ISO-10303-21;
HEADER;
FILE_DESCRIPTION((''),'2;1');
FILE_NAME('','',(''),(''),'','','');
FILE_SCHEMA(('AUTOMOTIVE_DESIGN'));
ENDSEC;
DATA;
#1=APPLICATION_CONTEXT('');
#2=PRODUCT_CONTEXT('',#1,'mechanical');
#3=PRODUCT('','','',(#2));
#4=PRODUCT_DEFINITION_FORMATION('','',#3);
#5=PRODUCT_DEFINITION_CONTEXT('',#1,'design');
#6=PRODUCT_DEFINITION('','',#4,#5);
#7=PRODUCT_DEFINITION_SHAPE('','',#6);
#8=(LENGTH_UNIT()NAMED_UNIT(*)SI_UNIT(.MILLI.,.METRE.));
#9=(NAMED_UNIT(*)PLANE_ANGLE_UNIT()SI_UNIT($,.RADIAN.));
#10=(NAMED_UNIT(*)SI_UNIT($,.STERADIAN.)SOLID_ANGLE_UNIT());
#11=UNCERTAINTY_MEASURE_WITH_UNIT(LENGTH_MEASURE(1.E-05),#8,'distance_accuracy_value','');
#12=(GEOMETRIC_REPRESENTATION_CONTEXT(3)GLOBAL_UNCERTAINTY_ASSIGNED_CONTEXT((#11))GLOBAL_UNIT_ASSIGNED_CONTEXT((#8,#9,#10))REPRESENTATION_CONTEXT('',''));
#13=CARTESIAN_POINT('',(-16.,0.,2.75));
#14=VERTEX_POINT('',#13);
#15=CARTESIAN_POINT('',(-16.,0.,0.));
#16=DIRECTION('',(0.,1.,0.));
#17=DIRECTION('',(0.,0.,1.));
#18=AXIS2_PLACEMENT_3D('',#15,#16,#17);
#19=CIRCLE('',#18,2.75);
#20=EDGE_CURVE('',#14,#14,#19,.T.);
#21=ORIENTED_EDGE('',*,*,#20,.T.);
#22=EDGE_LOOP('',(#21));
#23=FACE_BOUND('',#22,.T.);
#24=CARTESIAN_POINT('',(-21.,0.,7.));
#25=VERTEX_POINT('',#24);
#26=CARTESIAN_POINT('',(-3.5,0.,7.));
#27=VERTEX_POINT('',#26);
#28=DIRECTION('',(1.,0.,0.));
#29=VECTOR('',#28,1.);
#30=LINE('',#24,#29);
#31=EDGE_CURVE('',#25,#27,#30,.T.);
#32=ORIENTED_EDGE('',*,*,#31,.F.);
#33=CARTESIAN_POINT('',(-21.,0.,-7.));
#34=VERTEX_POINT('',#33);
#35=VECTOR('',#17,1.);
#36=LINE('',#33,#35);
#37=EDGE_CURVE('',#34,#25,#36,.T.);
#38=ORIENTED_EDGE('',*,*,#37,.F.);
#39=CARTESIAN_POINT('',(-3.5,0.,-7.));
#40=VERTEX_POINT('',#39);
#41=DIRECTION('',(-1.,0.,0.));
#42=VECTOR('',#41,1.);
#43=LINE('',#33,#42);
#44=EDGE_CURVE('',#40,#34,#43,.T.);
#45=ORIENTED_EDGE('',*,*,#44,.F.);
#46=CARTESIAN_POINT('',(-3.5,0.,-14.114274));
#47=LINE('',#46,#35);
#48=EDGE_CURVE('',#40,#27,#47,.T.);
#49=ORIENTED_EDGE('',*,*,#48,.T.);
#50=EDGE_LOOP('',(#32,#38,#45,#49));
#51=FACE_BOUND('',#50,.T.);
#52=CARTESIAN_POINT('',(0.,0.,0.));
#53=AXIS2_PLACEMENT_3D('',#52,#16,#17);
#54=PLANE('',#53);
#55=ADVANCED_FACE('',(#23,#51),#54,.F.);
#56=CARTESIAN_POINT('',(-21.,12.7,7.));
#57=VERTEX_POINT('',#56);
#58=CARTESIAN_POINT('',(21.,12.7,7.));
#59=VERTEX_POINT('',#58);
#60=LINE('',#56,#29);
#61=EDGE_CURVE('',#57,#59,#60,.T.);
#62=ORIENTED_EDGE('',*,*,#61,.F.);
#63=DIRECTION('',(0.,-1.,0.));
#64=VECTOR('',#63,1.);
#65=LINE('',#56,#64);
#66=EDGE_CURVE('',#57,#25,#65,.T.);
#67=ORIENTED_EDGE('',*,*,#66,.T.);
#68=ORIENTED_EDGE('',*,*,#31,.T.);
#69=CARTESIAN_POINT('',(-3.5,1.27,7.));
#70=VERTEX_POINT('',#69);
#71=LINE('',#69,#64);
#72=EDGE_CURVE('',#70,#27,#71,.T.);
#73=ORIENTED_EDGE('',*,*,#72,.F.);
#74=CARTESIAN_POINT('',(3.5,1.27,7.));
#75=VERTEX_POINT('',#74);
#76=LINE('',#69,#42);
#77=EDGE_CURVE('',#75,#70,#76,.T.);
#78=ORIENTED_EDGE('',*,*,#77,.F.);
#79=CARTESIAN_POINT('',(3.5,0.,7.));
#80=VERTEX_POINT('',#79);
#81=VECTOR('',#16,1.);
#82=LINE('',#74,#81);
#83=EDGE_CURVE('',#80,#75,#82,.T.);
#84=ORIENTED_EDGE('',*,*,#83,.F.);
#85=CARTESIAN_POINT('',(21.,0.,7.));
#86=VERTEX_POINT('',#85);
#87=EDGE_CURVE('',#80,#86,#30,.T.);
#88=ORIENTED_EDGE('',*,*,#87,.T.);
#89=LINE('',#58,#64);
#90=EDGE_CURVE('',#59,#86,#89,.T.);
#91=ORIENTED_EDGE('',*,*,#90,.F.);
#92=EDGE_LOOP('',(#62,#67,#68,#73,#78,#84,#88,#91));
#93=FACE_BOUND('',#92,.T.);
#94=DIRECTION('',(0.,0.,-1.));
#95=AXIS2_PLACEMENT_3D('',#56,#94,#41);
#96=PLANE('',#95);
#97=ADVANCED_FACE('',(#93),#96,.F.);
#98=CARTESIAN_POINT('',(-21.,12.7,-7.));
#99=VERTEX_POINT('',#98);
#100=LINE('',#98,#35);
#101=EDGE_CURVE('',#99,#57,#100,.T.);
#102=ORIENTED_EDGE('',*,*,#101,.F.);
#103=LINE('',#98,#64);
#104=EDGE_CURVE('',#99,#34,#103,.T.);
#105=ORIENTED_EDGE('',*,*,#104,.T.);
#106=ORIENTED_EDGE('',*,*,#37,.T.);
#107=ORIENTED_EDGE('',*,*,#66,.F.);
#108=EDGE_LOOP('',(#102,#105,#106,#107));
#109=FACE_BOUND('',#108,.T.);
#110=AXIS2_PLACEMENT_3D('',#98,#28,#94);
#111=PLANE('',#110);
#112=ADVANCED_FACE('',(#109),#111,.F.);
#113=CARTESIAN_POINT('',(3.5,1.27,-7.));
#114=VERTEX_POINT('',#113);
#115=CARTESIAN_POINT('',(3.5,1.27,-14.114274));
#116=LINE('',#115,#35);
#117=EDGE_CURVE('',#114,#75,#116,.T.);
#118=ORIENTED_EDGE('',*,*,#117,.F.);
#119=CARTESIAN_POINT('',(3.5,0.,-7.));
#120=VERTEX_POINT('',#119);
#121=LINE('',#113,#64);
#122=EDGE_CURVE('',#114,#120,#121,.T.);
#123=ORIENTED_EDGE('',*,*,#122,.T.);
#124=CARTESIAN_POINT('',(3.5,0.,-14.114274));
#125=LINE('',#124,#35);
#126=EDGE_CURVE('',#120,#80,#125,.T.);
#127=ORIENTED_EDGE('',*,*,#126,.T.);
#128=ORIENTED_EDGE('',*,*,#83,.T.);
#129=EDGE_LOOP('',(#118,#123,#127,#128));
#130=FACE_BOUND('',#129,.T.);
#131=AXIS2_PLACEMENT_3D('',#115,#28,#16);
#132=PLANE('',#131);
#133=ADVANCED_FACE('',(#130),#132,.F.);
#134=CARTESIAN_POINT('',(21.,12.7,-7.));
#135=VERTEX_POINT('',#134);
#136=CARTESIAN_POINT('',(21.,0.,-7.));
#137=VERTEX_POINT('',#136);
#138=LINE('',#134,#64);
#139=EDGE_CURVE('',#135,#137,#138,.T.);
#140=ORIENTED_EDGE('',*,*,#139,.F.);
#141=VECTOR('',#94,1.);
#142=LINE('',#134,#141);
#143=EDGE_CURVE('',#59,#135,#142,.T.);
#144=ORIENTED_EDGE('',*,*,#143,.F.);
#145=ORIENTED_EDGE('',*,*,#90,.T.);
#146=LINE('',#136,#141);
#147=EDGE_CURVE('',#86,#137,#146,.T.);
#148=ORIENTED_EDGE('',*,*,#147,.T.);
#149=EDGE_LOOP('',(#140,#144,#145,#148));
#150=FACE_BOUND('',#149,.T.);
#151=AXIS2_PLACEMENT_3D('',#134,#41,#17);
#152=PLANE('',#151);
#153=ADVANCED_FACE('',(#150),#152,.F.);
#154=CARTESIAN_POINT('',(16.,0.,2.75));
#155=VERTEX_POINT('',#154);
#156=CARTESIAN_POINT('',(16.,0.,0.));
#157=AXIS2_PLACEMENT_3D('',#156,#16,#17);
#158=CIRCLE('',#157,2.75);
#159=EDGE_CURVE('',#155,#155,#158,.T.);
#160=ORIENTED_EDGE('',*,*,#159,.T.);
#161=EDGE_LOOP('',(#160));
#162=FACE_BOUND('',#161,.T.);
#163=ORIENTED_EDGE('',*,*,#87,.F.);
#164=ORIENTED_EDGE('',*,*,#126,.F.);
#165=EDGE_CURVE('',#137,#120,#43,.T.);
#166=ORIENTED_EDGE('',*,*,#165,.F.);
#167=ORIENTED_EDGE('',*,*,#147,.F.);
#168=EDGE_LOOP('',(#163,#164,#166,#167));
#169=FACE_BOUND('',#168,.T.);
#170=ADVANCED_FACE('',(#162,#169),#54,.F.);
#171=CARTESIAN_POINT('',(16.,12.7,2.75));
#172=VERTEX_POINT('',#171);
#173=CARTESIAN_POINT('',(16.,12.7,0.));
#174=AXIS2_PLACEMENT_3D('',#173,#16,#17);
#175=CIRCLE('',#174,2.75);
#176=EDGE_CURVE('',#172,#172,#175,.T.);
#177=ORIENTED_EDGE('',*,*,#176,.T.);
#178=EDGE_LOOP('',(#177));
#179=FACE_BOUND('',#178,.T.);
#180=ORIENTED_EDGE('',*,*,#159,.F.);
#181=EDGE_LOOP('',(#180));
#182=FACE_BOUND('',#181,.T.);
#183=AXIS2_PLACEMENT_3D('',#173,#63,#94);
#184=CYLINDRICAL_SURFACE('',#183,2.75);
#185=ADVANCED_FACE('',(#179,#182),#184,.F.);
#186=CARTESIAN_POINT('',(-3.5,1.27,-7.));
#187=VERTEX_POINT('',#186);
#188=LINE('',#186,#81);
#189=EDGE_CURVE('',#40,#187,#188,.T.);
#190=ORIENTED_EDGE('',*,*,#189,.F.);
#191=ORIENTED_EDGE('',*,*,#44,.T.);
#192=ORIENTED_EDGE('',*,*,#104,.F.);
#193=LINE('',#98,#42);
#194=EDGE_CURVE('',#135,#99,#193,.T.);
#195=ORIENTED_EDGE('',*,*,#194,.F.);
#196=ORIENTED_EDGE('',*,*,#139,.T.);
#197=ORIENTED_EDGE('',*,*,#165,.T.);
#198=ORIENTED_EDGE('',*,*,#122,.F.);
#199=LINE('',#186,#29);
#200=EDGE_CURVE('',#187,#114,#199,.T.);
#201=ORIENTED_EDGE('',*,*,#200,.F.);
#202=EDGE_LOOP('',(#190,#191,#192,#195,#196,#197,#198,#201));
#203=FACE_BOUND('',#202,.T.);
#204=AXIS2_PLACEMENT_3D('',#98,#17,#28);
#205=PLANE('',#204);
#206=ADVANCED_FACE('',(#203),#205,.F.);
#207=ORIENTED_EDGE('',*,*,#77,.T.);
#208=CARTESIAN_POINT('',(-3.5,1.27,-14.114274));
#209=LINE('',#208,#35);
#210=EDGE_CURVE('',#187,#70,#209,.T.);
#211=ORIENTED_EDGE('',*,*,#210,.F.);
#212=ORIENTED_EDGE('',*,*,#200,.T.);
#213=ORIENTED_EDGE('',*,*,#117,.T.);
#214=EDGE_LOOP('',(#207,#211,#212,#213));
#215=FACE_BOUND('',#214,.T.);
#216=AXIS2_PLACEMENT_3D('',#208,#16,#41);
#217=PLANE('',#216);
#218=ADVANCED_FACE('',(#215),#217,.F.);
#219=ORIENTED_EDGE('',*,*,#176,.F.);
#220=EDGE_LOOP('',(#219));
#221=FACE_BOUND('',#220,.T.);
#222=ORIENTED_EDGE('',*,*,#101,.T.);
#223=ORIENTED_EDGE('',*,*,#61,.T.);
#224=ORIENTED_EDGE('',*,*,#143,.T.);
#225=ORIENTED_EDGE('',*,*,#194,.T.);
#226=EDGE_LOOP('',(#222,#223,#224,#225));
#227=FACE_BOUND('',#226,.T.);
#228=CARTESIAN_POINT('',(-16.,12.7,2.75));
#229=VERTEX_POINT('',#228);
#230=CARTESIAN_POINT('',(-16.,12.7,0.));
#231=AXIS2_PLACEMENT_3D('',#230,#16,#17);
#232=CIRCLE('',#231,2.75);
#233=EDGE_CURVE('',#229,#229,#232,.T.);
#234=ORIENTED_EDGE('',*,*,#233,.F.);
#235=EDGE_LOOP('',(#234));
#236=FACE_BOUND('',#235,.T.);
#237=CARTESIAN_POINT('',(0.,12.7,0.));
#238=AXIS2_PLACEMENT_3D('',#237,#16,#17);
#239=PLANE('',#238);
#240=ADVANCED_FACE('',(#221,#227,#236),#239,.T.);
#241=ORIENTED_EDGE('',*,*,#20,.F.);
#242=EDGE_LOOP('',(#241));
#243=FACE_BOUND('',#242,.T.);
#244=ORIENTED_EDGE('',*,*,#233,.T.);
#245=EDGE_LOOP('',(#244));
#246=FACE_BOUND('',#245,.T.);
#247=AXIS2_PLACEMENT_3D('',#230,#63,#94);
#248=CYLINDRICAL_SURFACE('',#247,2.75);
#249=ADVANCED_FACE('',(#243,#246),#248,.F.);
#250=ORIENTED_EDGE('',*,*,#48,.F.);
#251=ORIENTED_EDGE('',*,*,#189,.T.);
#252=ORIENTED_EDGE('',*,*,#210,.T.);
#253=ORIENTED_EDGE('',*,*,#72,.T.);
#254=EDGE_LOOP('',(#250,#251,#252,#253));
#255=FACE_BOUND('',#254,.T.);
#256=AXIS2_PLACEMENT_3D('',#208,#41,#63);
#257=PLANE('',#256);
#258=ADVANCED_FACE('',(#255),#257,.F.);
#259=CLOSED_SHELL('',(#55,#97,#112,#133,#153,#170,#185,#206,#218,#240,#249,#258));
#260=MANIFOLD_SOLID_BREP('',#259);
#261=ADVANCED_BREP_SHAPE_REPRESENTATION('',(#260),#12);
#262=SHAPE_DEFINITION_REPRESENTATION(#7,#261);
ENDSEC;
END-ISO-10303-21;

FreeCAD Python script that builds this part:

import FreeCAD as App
import Part
import Sketcher
Q = App.Units.Quantity

doc = App.newDocument("Part")
body = doc.addObject("PartDesign::Body", "Body")

sketch1 = doc.addObject("Sketcher::SketchObject", "Sketch")
body.addObject(sketch1)
sketch1.AttachmentSupport = (doc.XZ_Plane, [""])
sketch1.MapMode = "FlatFace"
sketch1.addGeometry(Part.LineSegment(App.Vector(-21, -7, 0), App.Vector(-21, 7, 0)), False)
sketch1.addGeometry(Part.LineSegment(App.Vector(-21, 7, 0), App.Vector(21, 7, 0)), False)
sketch1.addGeometry(Part.LineSegment(App.Vector(21, 7, 0), App.Vector(21, -7, 0)), False)
sketch1.addGeometry(Part.LineSegment(App.Vector(21, -7, 0), App.Vector(-21, -7, 0)), False)
sketch1.addGeometry(Part.Circle(App.Vector(-16, 0, 0), App.Vector(0, 0, 1), 2.75), False)
sketch1.addGeometry(Part.Circle(App.Vector(16, 0, 0), App.Vector(0, 0, 1), 2.75), False)
sketch1.addConstraint(Sketcher.Constraint("Coincident", 0, 2, 1, 1))
sketch1.addConstraint(Sketcher.Constraint("Coincident", 1, 2, 2, 1))
sketch1.addConstraint(Sketcher.Constraint("Coincident", 2, 2, 3, 1))
sketch1.addConstraint(Sketcher.Constraint("Coincident", 3, 2, 0, 1))
sketch1.addConstraint(Sketcher.Constraint("Vertical", 0))
sketch1.addConstraint(Sketcher.Constraint("Horizontal", 1))
sketch1.addConstraint(Sketcher.Constraint("Vertical", 2))
sketch1.addConstraint(Sketcher.Constraint("Horizontal", 3))
sketch1.addConstraint(Sketcher.Constraint("Equal", 4, 5))
sketch1.addConstraint(Sketcher.Constraint("Symmetric", 4, 3, 5, 3, -1, 1))
sketch1.addConstraint(Sketcher.Constraint("Symmetric", 0, 2, 2, 2, -1, 1))
sketch1.addConstraint(Sketcher.Constraint("PointOnObject", 4, 3, -1))
sketch1.addConstraint(Sketcher.Constraint("Diameter", 4, Q("5.5 mm")))
sketch1.addConstraint(Sketcher.Constraint("DistanceX", 1, 1, 1, 2, Q("42 mm")))
sketch1.addConstraint(Sketcher.Constraint("DistanceY", 0, 1, 0, 2, Q("14 mm")))
sketch1.addConstraint(Sketcher.Constraint("DistanceX", 4, 3, -1, 1, Q("16 mm")))
pad1 = doc.addObject("PartDesign::Pad", "Pad")
body.addObject(pad1)
pad1.Profile = sketch1
pad1.Length = 12.7
pad1.Reversed = True

sketch2 = doc.addObject("Sketcher::SketchObject", "Sketch001")
body.addObject(sketch2)
sketch2.AttachmentSupport = (doc.XY_Plane, [""])
sketch2.MapMode = "FlatFace"
sketch2.AttachmentOffset = App.Placement(App.Vector(0, 0, 7), App.Rotation())
sketch2.addGeometry(Part.LineSegment(App.Vector(-3.5, 1.27, 0), App.Vector(-3.5, 0, 0)), False)
sketch2.addGeometry(Part.LineSegment(App.Vector(-3.5, 0, 0), App.Vector(3.5, 0, 0)), False)
sketch2.addGeometry(Part.LineSegment(App.Vector(3.5, 0, 0), App.Vector(3.5, 1.27, 0)), False)
sketch2.addGeometry(Part.LineSegment(App.Vector(3.5, 1.27, 0), App.Vector(-3.5, 1.27, 0)), False)
sketch2.addConstraint(Sketcher.Constraint("Coincident", 0, 2, 1, 1))
sketch2.addConstraint(Sketcher.Constraint("Coincident", 1, 2, 2, 1))
sketch2.addConstraint(Sketcher.Constraint("Coincident", 2, 2, 3, 1))
sketch2.addConstraint(Sketcher.Constraint("Coincident", 3, 2, 0, 1))
sketch2.addConstraint(Sketcher.Constraint("Vertical", 0))
sketch2.addConstraint(Sketcher.Constraint("Horizontal", 1))
sketch2.addConstraint(Sketcher.Constraint("Vertical", 2))
sketch2.addConstraint(Sketcher.Constraint("Horizontal", 3))
sketch2.addConstraint(Sketcher.Constraint("Symmetric", 0, 2, 1, 2, -1, 1))
sketch2.addConstraint(Sketcher.Constraint("DistanceX", 1, 1, 1, 2, Q("7 mm")))
sketch2.addConstraint(Sketcher.Constraint("DistanceY", 0, 2, 0, 1, Q("1.27 mm")))
pocket1 = doc.addObject("PartDesign::Pocket", "Pocket")
body.addObject(pocket1)
pocket1.Profile = sketch2
pocket1.Length = 14

doc.recompute()
